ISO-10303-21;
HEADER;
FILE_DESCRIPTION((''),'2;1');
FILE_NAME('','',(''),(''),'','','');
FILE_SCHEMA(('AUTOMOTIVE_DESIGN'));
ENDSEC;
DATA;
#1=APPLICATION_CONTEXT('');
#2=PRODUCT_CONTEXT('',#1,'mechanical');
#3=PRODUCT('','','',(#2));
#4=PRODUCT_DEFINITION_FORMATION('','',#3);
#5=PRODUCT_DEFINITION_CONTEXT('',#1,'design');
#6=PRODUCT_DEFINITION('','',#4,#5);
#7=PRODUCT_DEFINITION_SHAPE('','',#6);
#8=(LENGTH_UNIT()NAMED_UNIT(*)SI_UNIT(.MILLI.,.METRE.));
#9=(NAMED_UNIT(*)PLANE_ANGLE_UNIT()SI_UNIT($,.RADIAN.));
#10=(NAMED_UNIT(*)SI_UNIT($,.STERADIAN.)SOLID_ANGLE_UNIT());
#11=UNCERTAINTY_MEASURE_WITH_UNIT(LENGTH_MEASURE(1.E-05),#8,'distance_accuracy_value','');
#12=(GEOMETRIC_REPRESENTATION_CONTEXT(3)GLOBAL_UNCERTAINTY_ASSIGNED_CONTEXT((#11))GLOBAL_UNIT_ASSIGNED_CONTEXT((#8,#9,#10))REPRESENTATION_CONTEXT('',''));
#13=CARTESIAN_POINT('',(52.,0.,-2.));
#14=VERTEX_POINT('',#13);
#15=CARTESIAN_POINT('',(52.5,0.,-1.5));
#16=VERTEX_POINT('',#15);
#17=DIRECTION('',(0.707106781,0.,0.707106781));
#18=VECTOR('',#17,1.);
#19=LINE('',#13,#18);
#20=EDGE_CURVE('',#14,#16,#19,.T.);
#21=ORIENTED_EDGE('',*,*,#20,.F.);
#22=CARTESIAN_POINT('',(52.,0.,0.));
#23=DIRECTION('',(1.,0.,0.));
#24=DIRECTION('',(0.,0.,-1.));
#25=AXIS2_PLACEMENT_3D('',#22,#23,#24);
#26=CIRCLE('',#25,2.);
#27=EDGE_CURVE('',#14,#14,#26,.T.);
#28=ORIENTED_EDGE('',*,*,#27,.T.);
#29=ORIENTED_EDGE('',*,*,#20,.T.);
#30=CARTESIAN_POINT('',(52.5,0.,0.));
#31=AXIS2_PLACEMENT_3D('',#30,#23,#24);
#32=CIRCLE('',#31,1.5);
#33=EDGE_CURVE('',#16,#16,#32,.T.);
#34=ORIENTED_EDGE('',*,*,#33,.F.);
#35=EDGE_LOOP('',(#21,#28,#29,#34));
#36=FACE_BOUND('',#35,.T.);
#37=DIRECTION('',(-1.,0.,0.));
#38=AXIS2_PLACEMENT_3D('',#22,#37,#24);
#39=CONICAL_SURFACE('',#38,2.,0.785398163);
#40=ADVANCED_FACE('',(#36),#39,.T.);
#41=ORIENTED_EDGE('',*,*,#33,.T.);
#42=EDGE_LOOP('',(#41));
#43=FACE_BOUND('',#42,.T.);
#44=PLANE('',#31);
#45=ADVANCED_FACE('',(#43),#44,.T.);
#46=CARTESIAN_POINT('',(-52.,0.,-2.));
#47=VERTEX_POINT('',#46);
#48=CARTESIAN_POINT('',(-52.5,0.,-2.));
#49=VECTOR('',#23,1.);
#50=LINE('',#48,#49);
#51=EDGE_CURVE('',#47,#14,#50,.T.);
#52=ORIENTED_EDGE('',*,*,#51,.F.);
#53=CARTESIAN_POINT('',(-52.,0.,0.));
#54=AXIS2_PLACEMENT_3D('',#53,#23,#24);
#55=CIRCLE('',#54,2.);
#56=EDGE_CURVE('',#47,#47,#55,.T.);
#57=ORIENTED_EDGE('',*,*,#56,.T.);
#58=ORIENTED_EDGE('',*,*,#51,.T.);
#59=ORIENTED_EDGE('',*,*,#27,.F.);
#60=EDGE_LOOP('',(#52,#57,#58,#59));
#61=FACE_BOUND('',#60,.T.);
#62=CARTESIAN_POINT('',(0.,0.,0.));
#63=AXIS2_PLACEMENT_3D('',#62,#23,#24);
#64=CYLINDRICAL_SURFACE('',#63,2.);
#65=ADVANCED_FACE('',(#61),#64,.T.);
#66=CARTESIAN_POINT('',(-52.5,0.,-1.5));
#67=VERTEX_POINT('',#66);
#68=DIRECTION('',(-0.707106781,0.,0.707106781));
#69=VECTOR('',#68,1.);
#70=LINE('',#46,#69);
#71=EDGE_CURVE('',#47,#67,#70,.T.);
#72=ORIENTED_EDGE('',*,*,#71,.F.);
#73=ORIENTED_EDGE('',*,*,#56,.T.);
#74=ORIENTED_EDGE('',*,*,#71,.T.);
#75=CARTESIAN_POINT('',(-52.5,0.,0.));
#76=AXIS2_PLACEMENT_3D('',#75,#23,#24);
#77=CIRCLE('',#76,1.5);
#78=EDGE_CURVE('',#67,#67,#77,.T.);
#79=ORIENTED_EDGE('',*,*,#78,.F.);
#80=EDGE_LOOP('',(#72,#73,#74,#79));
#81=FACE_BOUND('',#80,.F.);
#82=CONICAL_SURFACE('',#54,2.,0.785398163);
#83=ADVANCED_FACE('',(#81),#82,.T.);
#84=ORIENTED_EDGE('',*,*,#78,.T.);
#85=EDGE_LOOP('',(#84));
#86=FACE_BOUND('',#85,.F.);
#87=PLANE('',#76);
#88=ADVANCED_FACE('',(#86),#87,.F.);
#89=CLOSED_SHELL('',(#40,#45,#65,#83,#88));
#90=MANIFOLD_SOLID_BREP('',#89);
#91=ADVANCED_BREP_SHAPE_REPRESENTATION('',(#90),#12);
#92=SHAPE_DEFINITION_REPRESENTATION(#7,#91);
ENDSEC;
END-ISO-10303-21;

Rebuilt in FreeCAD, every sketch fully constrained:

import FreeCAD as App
import Part
import Sketcher

V = App.Vector


def edges_at(feature, points):
    """Names of the edges that pass closest to the given points."""
    edges = feature.Shape.Edges
    near = lambda p: min(range(len(edges)), key=lambda i: edges[i].distToShape(Part.Vertex(*p))[0])
    return sorted({f"Edge{near(p) + 1}" for p in points})

doc = App.newDocument("Part")
body = doc.addObject("PartDesign::Body", "Body")

# Sketch on YZ plane
sketch1 = doc.addObject("Sketcher::SketchObject", "Sketch")
body.addObject(sketch1)
sketch1.AttachmentSupport = (doc.YZ_Plane, [""])
sketch1.MapMode = "FlatFace"
sketch1.addGeometry(Part.Circle(V(0, 0, 0), V(0, 0, 1), 2), False)
sketch1.addConstraint(Sketcher.Constraint("Coincident", 0, 3, -1, 1))
sketch1.addConstraint(Sketcher.Constraint("Diameter", 0, 4.0))
pad1 = doc.addObject("PartDesign::Pad", "Pad")
body.addObject(pad1)
pad1.Profile = sketch1
pad1.Length = 105
pad1.Midplane = True
doc.recompute()

chamfer = doc.addObject("PartDesign::Chamfer", "Chamfer")
body.addObject(chamfer)
chamfer.Base = (pad1, edges_at(pad1, [(-52.5, 0, 2), (52.5, 0, 2)]))
chamfer.Size = 0.5

doc.recompute()
